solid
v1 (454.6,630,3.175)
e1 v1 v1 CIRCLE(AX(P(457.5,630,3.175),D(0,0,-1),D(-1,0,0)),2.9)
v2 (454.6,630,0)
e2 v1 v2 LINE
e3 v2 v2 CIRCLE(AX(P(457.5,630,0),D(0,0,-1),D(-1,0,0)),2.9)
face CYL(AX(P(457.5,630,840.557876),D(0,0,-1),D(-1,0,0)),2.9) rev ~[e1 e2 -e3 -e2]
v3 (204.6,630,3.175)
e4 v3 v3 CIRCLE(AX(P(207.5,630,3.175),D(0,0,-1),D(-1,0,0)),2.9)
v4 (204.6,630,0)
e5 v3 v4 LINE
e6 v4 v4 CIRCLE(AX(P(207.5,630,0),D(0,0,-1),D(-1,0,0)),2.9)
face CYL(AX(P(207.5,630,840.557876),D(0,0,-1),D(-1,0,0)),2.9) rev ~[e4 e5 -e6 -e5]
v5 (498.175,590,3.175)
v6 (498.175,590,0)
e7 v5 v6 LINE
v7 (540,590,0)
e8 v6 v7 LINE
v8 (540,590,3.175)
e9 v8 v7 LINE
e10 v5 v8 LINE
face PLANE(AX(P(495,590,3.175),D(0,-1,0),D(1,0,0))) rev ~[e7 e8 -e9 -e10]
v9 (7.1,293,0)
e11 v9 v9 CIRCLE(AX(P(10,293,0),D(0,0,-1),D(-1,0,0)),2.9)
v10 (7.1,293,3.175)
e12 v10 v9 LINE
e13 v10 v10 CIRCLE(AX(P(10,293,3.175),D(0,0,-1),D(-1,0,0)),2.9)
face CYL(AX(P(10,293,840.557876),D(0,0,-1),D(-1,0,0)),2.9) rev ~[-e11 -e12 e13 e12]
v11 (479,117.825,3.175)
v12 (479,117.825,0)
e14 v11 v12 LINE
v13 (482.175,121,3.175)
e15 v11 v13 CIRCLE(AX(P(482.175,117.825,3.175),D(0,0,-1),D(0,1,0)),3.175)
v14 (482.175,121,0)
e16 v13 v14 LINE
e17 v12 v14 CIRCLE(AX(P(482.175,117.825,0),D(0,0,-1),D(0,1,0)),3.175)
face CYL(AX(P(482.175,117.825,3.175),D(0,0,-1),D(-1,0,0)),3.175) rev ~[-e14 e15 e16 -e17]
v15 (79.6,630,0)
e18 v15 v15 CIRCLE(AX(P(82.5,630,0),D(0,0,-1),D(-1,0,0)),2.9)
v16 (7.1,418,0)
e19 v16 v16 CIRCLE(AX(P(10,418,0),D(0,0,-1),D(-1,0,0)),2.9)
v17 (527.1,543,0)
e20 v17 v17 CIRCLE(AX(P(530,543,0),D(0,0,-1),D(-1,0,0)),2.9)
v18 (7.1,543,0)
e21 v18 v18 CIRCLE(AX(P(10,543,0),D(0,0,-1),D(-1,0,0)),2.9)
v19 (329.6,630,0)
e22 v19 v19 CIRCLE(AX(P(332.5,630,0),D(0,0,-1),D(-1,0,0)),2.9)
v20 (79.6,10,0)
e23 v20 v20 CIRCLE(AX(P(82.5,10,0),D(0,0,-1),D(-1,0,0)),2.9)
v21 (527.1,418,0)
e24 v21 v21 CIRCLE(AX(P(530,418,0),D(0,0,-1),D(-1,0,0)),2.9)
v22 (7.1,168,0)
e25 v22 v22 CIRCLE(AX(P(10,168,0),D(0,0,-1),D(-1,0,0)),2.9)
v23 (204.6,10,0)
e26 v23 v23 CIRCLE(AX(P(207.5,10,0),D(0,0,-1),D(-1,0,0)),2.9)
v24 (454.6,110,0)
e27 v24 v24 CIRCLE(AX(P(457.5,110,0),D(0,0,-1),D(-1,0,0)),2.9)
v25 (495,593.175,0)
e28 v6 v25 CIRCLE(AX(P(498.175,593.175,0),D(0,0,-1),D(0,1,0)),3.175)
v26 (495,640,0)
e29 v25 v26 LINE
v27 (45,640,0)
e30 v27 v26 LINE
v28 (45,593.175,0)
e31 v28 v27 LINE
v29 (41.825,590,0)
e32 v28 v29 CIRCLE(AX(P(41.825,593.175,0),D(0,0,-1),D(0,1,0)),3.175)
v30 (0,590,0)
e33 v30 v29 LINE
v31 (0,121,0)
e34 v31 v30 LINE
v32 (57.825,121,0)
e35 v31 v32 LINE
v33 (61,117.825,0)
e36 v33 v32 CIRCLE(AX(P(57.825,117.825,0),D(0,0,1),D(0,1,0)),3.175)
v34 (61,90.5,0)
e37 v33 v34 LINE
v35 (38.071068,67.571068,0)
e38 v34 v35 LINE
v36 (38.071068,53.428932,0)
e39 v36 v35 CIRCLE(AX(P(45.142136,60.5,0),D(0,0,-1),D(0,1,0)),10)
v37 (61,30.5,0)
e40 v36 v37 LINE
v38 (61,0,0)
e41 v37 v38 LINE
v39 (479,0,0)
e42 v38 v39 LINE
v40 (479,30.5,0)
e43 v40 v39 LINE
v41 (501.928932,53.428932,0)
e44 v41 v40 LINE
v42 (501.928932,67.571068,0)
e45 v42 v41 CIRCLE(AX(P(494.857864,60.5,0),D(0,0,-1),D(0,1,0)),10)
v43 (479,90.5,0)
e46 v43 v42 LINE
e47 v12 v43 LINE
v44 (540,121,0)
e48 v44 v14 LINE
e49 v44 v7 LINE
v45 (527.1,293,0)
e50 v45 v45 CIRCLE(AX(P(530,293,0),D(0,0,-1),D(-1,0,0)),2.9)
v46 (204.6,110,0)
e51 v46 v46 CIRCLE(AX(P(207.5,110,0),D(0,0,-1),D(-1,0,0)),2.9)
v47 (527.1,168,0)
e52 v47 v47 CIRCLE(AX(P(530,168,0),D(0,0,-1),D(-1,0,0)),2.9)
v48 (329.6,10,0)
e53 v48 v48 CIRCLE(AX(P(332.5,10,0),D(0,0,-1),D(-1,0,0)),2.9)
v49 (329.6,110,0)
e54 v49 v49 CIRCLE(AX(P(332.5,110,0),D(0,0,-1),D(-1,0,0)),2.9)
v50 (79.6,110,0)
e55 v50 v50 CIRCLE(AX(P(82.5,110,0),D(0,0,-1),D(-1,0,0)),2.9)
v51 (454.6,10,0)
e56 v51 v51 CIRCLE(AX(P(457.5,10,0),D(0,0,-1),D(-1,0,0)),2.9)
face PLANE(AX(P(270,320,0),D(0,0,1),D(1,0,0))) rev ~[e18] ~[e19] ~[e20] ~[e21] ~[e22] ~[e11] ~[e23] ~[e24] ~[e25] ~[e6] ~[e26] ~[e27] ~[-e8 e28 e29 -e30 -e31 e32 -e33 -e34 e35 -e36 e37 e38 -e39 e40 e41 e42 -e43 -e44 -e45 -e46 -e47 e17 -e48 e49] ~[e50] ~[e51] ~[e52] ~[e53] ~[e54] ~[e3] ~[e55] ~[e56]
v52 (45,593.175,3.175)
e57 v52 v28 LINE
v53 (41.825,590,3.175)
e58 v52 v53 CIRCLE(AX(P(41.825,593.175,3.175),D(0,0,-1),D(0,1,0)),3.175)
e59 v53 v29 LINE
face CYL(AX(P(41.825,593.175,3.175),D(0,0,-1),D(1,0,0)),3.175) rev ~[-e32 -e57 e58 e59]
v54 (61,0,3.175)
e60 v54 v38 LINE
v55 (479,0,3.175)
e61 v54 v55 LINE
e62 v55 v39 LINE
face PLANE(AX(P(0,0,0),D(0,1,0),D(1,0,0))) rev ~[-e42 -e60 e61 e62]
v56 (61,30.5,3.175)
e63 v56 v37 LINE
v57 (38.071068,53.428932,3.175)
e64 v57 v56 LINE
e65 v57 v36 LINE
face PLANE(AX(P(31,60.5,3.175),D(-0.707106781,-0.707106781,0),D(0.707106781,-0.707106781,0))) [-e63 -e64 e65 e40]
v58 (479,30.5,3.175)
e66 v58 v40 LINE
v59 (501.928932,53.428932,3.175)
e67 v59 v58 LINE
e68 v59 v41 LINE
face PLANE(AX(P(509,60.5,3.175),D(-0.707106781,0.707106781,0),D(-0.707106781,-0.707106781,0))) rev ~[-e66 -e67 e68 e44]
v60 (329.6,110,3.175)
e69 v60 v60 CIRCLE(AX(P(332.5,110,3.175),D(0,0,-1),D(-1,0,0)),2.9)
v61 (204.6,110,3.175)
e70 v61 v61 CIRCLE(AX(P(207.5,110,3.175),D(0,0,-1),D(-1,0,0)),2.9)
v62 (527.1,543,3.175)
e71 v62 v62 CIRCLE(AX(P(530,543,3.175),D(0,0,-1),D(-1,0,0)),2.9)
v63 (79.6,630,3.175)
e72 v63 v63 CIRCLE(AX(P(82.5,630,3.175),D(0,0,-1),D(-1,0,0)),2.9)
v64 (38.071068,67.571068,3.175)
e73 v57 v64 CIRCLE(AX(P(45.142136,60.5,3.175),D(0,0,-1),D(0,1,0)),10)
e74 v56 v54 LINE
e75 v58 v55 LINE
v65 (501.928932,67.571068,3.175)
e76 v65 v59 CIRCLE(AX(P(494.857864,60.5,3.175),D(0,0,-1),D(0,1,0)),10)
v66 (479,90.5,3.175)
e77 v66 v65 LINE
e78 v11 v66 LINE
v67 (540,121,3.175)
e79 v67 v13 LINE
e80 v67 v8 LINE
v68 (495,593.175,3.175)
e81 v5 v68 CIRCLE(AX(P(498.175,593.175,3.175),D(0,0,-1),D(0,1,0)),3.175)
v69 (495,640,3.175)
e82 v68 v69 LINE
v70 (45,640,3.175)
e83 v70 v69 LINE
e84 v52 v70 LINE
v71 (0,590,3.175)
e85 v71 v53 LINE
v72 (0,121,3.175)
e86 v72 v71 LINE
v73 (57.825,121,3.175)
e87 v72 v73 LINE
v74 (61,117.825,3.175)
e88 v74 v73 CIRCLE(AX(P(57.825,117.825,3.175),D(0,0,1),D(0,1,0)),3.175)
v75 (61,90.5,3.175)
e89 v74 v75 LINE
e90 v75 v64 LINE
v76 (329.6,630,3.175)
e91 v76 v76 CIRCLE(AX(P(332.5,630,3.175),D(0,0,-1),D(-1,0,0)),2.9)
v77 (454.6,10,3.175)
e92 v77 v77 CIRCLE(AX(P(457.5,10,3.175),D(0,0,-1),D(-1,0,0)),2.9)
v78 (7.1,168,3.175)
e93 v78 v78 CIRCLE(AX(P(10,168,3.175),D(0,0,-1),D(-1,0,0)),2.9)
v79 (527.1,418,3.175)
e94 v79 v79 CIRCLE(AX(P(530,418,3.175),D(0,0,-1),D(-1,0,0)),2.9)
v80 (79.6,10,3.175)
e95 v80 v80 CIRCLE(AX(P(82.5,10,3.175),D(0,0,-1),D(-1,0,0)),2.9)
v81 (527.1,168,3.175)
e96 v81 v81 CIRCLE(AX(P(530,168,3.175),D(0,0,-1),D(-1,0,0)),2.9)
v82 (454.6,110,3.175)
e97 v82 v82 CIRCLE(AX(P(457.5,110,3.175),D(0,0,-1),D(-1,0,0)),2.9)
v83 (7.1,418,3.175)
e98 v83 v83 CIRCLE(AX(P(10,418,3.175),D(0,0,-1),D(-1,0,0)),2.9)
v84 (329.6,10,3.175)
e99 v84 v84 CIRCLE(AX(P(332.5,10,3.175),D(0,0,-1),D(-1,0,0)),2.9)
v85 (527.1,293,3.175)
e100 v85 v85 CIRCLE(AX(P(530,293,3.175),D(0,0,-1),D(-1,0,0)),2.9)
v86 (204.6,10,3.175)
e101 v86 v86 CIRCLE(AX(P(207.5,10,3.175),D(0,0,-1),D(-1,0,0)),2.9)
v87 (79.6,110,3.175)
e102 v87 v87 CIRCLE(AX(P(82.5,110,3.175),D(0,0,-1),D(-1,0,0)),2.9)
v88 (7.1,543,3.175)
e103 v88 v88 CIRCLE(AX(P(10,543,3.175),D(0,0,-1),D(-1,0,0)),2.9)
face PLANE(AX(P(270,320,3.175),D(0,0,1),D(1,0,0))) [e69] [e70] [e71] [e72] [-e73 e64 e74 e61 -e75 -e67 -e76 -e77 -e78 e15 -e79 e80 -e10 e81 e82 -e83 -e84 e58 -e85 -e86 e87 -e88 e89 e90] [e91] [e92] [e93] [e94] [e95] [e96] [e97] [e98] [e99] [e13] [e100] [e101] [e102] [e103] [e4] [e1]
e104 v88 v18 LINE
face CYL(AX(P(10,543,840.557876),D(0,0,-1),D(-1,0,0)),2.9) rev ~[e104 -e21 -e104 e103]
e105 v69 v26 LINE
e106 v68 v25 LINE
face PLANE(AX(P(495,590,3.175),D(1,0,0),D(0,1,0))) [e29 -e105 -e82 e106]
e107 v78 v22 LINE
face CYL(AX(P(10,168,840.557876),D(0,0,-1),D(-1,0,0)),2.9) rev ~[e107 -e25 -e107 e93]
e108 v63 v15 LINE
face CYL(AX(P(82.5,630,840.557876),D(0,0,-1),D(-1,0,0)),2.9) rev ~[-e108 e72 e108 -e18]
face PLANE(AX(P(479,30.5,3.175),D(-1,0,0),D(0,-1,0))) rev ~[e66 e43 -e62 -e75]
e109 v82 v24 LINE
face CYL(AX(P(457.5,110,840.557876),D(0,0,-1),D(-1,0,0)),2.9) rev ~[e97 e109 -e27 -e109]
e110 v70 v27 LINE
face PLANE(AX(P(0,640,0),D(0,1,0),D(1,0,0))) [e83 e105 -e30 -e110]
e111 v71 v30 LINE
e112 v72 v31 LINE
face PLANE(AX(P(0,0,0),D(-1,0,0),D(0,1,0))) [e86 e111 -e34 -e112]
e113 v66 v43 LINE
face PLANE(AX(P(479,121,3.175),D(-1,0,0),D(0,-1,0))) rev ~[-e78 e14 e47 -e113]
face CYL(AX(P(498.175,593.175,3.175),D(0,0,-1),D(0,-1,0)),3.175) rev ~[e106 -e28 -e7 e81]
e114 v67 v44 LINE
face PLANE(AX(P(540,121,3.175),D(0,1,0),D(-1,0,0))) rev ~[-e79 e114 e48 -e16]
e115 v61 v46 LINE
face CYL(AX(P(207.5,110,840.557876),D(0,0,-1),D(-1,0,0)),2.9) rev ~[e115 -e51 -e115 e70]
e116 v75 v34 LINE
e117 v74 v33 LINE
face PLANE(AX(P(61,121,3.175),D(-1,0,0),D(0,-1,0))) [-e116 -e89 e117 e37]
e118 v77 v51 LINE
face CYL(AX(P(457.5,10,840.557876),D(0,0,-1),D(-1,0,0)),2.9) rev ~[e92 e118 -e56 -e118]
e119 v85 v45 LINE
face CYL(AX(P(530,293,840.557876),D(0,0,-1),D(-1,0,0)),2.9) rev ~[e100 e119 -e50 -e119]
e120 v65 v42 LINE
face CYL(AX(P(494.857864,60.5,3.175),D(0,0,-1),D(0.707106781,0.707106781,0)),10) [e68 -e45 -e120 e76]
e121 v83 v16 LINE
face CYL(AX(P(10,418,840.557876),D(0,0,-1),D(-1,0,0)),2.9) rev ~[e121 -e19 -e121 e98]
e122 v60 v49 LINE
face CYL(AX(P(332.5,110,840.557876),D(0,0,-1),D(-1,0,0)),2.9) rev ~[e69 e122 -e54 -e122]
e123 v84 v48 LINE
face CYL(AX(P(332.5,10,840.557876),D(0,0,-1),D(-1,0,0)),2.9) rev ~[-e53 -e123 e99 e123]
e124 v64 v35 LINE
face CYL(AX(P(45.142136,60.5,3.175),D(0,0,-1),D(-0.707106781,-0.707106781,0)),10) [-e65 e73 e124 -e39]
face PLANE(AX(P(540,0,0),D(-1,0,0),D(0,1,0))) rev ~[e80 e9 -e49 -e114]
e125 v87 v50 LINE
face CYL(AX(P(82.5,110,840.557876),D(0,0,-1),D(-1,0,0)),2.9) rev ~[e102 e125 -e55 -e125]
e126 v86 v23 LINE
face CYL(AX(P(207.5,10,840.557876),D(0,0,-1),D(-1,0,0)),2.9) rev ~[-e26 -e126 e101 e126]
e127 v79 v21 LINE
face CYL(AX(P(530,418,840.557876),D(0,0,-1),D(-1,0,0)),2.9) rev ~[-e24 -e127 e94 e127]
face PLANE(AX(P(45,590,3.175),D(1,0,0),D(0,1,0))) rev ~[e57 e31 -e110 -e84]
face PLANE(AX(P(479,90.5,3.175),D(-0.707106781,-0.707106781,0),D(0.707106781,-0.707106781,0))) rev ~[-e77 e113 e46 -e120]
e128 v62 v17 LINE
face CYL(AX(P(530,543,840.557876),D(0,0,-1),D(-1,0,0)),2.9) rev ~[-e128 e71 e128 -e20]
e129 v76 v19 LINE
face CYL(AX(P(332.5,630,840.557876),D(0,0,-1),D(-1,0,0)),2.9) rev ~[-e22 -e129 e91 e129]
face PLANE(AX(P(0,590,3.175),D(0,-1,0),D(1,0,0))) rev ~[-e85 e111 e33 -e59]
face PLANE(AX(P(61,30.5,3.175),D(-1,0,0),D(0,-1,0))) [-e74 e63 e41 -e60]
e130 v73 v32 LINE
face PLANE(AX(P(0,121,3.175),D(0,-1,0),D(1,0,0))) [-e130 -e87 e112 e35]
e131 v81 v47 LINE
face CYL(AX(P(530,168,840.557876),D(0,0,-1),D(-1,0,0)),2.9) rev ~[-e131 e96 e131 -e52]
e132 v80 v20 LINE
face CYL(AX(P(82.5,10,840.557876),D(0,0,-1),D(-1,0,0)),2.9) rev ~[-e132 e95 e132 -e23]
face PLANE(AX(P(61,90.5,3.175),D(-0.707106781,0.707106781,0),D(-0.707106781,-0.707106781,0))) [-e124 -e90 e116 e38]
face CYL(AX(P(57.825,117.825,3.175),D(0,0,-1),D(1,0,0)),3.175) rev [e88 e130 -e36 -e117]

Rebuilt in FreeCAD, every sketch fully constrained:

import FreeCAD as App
import Part
import Sketcher
from FreeCAD import Vector
Q = App.Units.Quantity


def edges_at(feature, points):
    """Names of the edges that pass closest to the given points."""
    edges = feature.Shape.Edges
    near = lambda p: min(range(len(edges)), key=lambda i: edges[i].distToShape(Part.Vertex(*p))[0])
    return sorted({f"Edge{near(p) + 1}" for p in points})

doc = App.newDocument("Part")
body = doc.addObject("PartDesign::Body", "Body")

# Sketch on XY plane
sketch1 = body.newObject("Sketcher::SketchObject", "Sketch")
sketch1.AttachmentSupport = (doc.getObject("XY_Plane"), [""])
sketch1.MapMode = "FlatFace"
sketch1.addGeometry(Part.LineSegment(Vector(0, 640, 0), Vector(0, 0, 0)), False)
sketch1.addGeometry(Part.LineSegment(Vector(0, 0, 0), Vector(540, 0, 0)), False)
sketch1.addGeometry(Part.LineSegment(Vector(540, 0, 0), Vector(540, 640, 0)), False)
sketch1.addGeometry(Part.LineSegment(Vector(540, 640, 0), Vector(0, 640, 0)), False)
sketch1.addConstraint(Sketcher.Constraint("Coincident", 0, 2, 1, 1))
sketch1.addConstraint(Sketcher.Constraint("Coincident", 1, 2, 2, 1))
sketch1.addConstraint(Sketcher.Constraint("Coincident", 2, 2, 3, 1))
sketch1.addConstraint(Sketcher.Constraint("Coincident", 3, 2, 0, 1))
sketch1.addConstraint(Sketcher.Constraint("Vertical", 0))
sketch1.addConstraint(Sketcher.Constraint("Horizontal", 1))
sketch1.addConstraint(Sketcher.Constraint("Vertical", 2))
sketch1.addConstraint(Sketcher.Constraint("Horizontal", 3))
sketch1.addConstraint(Sketcher.Constraint("Coincident", 0, 2, -1, 1))
sketch1.addConstraint(Sketcher.Constraint("DistanceX", 1, 1, 1, 2, Q("540 mm")))
sketch1.addConstraint(Sketcher.Constraint("DistanceY", 0, 2, 0, 1, Q("640 mm")))
pad1 = body.newObject("PartDesign::Pad", "Pad")
pad1.Profile = sketch1
pad1.Length = 3.175

# Sketch on XY plane
sketch2 = body.newObject("Sketcher::SketchObject", "Sketch001")
sketch2.AttachmentSupport = (doc.getObject("XY_Plane"), [""])
sketch2.MapMode = "FlatFace"
sketch2.AttachmentOffset = App.Placement(Vector(0, 0, 3.175), App.Rotation())
sketch2.addGeometry(Part.LineSegment(Vector(0, 640, 0), Vector(0, 590, 0)), False)
sketch2.addGeometry(Part.LineSegment(Vector(0, 590, 0), Vector(45, 590, 0)), False)
sketch2.addGeometry(Part.LineSegment(Vector(45, 590, 0), Vector(45, 640, 0)), False)
sketch2.addGeometry(Part.LineSegment(Vector(45, 640, 0), Vector(0, 640, 0)), False)
sketch2.addGeometry(Part.LineSegment(Vector(61, 121, 0), Vector(0, 121, 0)), False)
sketch2.addGeometry(Part.LineSegment(Vector(0, 121, 0), Vector(0, 0, 0)), False)
sketch2.addGeometry(Part.LineSegment(Vector(0, 0, 0), Vector(61, 0, 0)), False)
sketch2.addGeometry(Part.LineSegment(Vector(61, 0, 0), Vector(61, 30.5, 0)), False)
sketch2.addGeometry(Part.LineSegment(Vector(61, 30.5, 0), Vector(31, 60.5, 0)), False)
sketch2.addGeometry(Part.LineSegment(Vector(31, 60.5, 0), Vector(61, 90.5, 0)), False)
sketch2.addGeometry(Part.LineSegment(Vector(61, 90.5, 0), Vector(61, 121, 0)), False)
sketch2.addGeometry(Part.LineSegment(Vector(540, 0, 0), Vector(540, 121, 0)), False)
sketch2.addGeometry(Part.LineSegment(Vector(540, 121, 0), Vector(479, 121, 0)), False)
sketch2.addGeometry(Part.LineSegment(Vector(479, 121, 0), Vector(479, 90.5, 0)), False)
sketch2.addGeometry(Part.LineSegment(Vector(479, 90.5, 0), Vector(509, 60.5, 0)), False)
sketch2.addGeometry(Part.LineSegment(Vector(509, 60.5, 0), Vector(479, 30.5, 0)), False)
sketch2.addGeometry(Part.LineSegment(Vector(479, 30.5, 0), Vector(479, 0, 0)), False)
sketch2.addGeometry(Part.LineSegment(Vector(479, 0, 0), Vector(540, 0, 0)), False)
sketch2.addGeometry(Part.LineSegment(Vector(495, 640, 0), Vector(495, 590, 0)), False)
sketch2.addGeometry(Part.LineSegment(Vector(495, 590, 0), Vector(540, 590, 0)), False)
sketch2.addGeometry(Part.LineSegment(Vector(540, 590, 0), Vector(540, 640, 0)), False)
sketch2.addGeometry(Part.LineSegment(Vector(540, 640, 0), Vector(495, 640, 0)), False)
sketch2.addConstraint(Sketcher.Constraint("Coincident", 0, 2, 1, 1))
sketch2.addConstraint(Sketcher.Constraint("Coincident", 1, 2, 2, 1))
sketch2.addConstraint(Sketcher.Constraint("Coincident", 2, 2, 3, 1))
sketch2.addConstraint(Sketcher.Constraint("Coincident", 3, 2, 0, 1))
sketch2.addConstraint(Sketcher.Constraint("Coincident", 4, 2, 5, 1))
sketch2.addConstraint(Sketcher.Constraint("Coincident", 5, 2, 6, 1))
sketch2.addConstraint(Sketcher.Constraint("Coincident", 6, 2, 7, 1))
sketch2.addConstraint(Sketcher.Constraint("Coincident", 7, 2, 8, 1))
sketch2.addConstraint(Sketcher.Constraint("Coincident", 8, 2, 9, 1))
sketch2.addConstraint(Sketcher.Constraint("Coincident", 9, 2, 10, 1))
sketch2.addConstraint(Sketcher.Constraint("Coincident", 10, 2, 4, 1))
sketch2.addConstraint(Sketcher.Constraint("Coincident", 11, 2, 12, 1))
sketch2.addConstraint(Sketcher.Constraint("Coincident", 12, 2, 13, 1))
sketch2.addConstraint(Sketcher.Constraint("Coincident", 13, 2, 14, 1))
sketch2.addConstraint(Sketcher.Constraint("Coincident", 14, 2, 15, 1))
sketch2.addConstraint(Sketcher.Constraint("Coincident", 15, 2, 16, 1))
sketch2.addConstraint(Sketcher.Constraint("Coincident", 16, 2, 17, 1))
sketch2.addConstraint(Sketcher.Constraint("Coincident", 17, 2, 11, 1))
sketch2.addConstraint(Sketcher.Constraint("Coincident", 18, 2, 19, 1))
sketch2.addConstraint(Sketcher.Constraint("Coincident", 19, 2, 20, 1))
sketch2.addConstraint(Sketcher.Constraint("Coincident", 20, 2, 21, 1))
sketch2.addConstraint(Sketcher.Constraint("Coincident", 21, 2, 18, 1))
sketch2.addConstraint(Sketcher.Constraint("Vertical", 0))
sketch2.addConstraint(Sketcher.Constraint("Horizontal", 1))
sketch2.addConstraint(Sketcher.Constraint("Vertical", 2))
sketch2.addConstraint(Sketcher.Constraint("Horizontal", 3))
sketch2.addConstraint(Sketcher.Constraint("Horizontal", 4))
sketch2.addConstraint(Sketcher.Constraint("Vertical", 5))
sketch2.addConstraint(Sketcher.Constraint("Horizontal", 6))
sketch2.addConstraint(Sketcher.Constraint("Vertical", 7))
sketch2.addConstraint(Sketcher.Constraint("Vertical", 10))
sketch2.addConstraint(Sketcher.Constraint("Vertical", 11))
sketch2.addConstraint(Sketcher.Constraint("Horizontal", 12))
sketch2.addConstraint(Sketcher.Constraint("Vertical", 13))
sketch2.addConstraint(Sketcher.Constraint("Vertical", 16))
sketch2.addConstraint(Sketcher.Constraint("Horizontal", 17))
sketch2.addConstraint(Sketcher.Constraint("Vertical", 18))
sketch2.addConstraint(Sketcher.Constraint("Horizontal", 19))
sketch2.addConstraint(Sketcher.Constraint("Vertical", 20))
sketch2.addConstraint(Sketcher.Constraint("Horizontal", 21))
sketch2.addConstraint(Sketcher.Constraint("Coincident", 5, 2, -1, 1))
sketch2.addConstraint(Sketcher.Constraint("PointOnObject", 0, 2, -2))
sketch2.addConstraint(Sketcher.Constraint("PointOnObject", 16, 2, -1))
sketch2.addConstraint(Sketcher.Constraint("Perpendicular", 8, 9))
sketch2.addConstraint(Sketcher.Constraint("Perpendicular", 9, 14))
sketch2.addConstraint(Sketcher.Constraint("Perpendicular", 14, 15))
sketch2.addConstraint(Sketcher.Constraint("Horizontal", 10, 2, 11, 2))
sketch2.addConstraint(Sketcher.Constraint("Horizontal", 9, 2, 13, 2))
sketch2.addConstraint(Sketcher.Constraint("Horizontal", 8, 2, 14, 2))
sketch2.addConstraint(Sketcher.Constraint("Horizontal", 7, 2, 15, 2))
sketch2.addConstraint(Sketcher.Constraint("Horizontal", 1, 2, 18, 2))
sketch2.addConstraint(Sketcher.Constraint("Horizontal", 3, 2, 20, 2))
sketch2.addConstraint(Sketcher.Constraint("Vertical", 7, 2, 9, 2))
sketch2.addConstraint(Sketcher.Constraint("Vertical", 13, 2, 15, 2))
sketch2.addConstraint(Sketcher.Constraint("Vertical", 17, 2, 19, 2))
sketch2.addConstraint(Sketcher.Constraint("Equal", 6, 12))
sketch2.addConstraint(Sketcher.Constraint("Equal", 3, 19))
sketch2.addConstraint(Sketcher.Constraint("Equal", 7, 10))
sketch2.addConstraint(Sketcher.Constraint("DistanceX", 1, 1, 1, 2, Q("45 mm")))
sketch2.addConstraint(Sketcher.Constraint("DistanceX", 4, 2, 4, 1, Q("61 mm")))
sketch2.addConstraint(Sketcher.Constraint("DistanceY", 0, 2, 0, 1, Q("50 mm")))
sketch2.addConstraint(Sketcher.Constraint("DistanceY", 5, 2, 5, 1, Q("121 mm")))
sketch2.addConstraint(Sketcher.Constraint("DistanceY", 7, 1, 7, 2, Q("30.5 mm")))
sketch2.addConstraint(Sketcher.Constraint("DistanceY", -1, 1, 0, 2, Q("590 mm")))
sketch2.addConstraint(Sketcher.Constraint("DistanceX", -1, 1, 11, 2, Q("540 mm")))
pocket1 = body.newObject("PartDesign::Pocket", "Pocket")
pocket1.Profile = sketch2
pocket1.Type = "ThroughAll"
doc.recompute()

fillet = body.newObject("PartDesign::Fillet", "Fillet")
fillet.Base = (pocket1, edges_at(pocket1, [(31, 60.5, 1.587), (509, 60.5, 1.587)]))
fillet.Radius = 10
doc.recompute()

fillet2 = body.newObject("PartDesign::Fillet", "Fillet001")
fillet2.Base = (fillet, edges_at(fillet, [
    (45, 590, 1.587),
    (61, 121, 1.587),
    (479, 121, 1.587),
    (495, 590, 1.587),
]))
fillet2.Radius = 3.175

# Sketch on XY plane
sketch3 = body.newObject("Sketcher::SketchObject", "Sketch002")
sketch3.AttachmentSupport = (doc.getObject("XY_Plane"), [""])
sketch3.MapMode = "FlatFace"
sketch3.AttachmentOffset = App.Placement(Vector(0, 0, 3.175), App.Rotation())
sketch3.addGeometry(Part.Circle(Vector(82.5, 10, 0), Vector(0, 0, 1), 2.9), False)
sketch3.addGeometry(Part.Circle(Vector(82.5, 110, 0), Vector(0, 0, 1), 2.9), False)
sketch3.addGeometry(Part.Circle(Vector(82.5, 630, 0), Vector(0, 0, 1), 2.9), False)
sketch3.addConstraint(Sketcher.Constraint("Equal", 0, 1))
sketch3.addConstraint(Sketcher.Constraint("Equal", 1, 2))
sketch3.addConstraint(Sketcher.Constraint("Vertical", 0, 3, 1, 3))
sketch3.addConstraint(Sketcher.Constraint("Vertical", 1, 3, 2, 3))
sketch3.addConstraint(Sketcher.Constraint("Diameter", 0, Q("5.8 mm")))
sketch3.addConstraint(Sketcher.Constraint("DistanceY", -1, 1, 0, 3, Q("10 mm")))
sketch3.addConstraint(Sketcher.Constraint("DistanceY", -1, 1, 1, 3, Q("110 mm")))
sketch3.addConstraint(Sketcher.Constraint("DistanceY", -1, 1, 2, 3, Q("630 mm")))
sketch3.addConstraint(Sketcher.Constraint("DistanceX", -1, 1, 0, 3, Q("82.5 mm")))
doc.recompute()
hole = body.newObject("PartDesign::Hole", "Hole")
hole.Profile = sketch3
hole.ThreadType = "None"
hole.Diameter = 5.8
hole.DepthType = "ThroughAll"
doc.recompute()

linearpattern = body.newObject("PartDesign::LinearPattern", "LinearPattern")
linearpattern.Originals = [hole]
linearpattern.Direction = (doc.getObject("X_Axis"), [""])
linearpattern.Mode = "offset"
linearpattern.Offset = 125
linearpattern.Occurrences = 4
body.Tip = linearpattern

# Sketch on XY plane
sketch4 = body.newObject("Sketcher::SketchObject", "Sketch003")
sketch4.AttachmentSupport = (doc.getObject("XY_Plane"), [""])
sketch4.MapMode = "FlatFace"
sketch4.AttachmentOffset = App.Placement(Vector(0, 0, 3.175), App.Rotation())
sketch4.addGeometry(Part.Circle(Vector(10, 168, 0), Vector(0, 0, 1), 2.9), False)
sketch4.addGeometry(Part.Circle(Vector(530, 168, 0), Vector(0, 0, 1), 2.9), False)
sketch4.addConstraint(Sketcher.Constraint("Equal", 0, 1))
sketch4.addConstraint(Sketcher.Constraint("Horizontal", 0, 3, 1, 3))
sketch4.addConstraint(Sketcher.Constraint("Diameter", 0, Q("5.8 mm")))
sketch4.addConstraint(Sketcher.Constraint("DistanceX", -1, 1, 0, 3, Q("10 mm")))
sketch4.addConstraint(Sketcher.Constraint("DistanceY", -1, 1, 0, 3, Q("168 mm")))
sketch4.addConstraint(Sketcher.Constraint("DistanceX", -1, 1, 1, 3, Q("530 mm")))
doc.recompute()
hole2 = body.newObject("PartDesign::Hole", "Hole001")
hole2.Profile = sketch4
hole2.ThreadType = "None"
hole2.Diameter = 5.8
hole2.DepthType = "ThroughAll"
doc.recompute()

linearpattern2 = body.newObject("PartDesign::LinearPattern", "LinearPattern001")
linearpattern2.Originals = [hole2]
linearpattern2.Direction = (doc.getObject("Y_Axis"), [""])
linearpattern2.Mode = "offset"
linearpattern2.Offset = 125
linearpattern2.Occurrences = 4
body.Tip = linearpattern2

doc.recompute()
